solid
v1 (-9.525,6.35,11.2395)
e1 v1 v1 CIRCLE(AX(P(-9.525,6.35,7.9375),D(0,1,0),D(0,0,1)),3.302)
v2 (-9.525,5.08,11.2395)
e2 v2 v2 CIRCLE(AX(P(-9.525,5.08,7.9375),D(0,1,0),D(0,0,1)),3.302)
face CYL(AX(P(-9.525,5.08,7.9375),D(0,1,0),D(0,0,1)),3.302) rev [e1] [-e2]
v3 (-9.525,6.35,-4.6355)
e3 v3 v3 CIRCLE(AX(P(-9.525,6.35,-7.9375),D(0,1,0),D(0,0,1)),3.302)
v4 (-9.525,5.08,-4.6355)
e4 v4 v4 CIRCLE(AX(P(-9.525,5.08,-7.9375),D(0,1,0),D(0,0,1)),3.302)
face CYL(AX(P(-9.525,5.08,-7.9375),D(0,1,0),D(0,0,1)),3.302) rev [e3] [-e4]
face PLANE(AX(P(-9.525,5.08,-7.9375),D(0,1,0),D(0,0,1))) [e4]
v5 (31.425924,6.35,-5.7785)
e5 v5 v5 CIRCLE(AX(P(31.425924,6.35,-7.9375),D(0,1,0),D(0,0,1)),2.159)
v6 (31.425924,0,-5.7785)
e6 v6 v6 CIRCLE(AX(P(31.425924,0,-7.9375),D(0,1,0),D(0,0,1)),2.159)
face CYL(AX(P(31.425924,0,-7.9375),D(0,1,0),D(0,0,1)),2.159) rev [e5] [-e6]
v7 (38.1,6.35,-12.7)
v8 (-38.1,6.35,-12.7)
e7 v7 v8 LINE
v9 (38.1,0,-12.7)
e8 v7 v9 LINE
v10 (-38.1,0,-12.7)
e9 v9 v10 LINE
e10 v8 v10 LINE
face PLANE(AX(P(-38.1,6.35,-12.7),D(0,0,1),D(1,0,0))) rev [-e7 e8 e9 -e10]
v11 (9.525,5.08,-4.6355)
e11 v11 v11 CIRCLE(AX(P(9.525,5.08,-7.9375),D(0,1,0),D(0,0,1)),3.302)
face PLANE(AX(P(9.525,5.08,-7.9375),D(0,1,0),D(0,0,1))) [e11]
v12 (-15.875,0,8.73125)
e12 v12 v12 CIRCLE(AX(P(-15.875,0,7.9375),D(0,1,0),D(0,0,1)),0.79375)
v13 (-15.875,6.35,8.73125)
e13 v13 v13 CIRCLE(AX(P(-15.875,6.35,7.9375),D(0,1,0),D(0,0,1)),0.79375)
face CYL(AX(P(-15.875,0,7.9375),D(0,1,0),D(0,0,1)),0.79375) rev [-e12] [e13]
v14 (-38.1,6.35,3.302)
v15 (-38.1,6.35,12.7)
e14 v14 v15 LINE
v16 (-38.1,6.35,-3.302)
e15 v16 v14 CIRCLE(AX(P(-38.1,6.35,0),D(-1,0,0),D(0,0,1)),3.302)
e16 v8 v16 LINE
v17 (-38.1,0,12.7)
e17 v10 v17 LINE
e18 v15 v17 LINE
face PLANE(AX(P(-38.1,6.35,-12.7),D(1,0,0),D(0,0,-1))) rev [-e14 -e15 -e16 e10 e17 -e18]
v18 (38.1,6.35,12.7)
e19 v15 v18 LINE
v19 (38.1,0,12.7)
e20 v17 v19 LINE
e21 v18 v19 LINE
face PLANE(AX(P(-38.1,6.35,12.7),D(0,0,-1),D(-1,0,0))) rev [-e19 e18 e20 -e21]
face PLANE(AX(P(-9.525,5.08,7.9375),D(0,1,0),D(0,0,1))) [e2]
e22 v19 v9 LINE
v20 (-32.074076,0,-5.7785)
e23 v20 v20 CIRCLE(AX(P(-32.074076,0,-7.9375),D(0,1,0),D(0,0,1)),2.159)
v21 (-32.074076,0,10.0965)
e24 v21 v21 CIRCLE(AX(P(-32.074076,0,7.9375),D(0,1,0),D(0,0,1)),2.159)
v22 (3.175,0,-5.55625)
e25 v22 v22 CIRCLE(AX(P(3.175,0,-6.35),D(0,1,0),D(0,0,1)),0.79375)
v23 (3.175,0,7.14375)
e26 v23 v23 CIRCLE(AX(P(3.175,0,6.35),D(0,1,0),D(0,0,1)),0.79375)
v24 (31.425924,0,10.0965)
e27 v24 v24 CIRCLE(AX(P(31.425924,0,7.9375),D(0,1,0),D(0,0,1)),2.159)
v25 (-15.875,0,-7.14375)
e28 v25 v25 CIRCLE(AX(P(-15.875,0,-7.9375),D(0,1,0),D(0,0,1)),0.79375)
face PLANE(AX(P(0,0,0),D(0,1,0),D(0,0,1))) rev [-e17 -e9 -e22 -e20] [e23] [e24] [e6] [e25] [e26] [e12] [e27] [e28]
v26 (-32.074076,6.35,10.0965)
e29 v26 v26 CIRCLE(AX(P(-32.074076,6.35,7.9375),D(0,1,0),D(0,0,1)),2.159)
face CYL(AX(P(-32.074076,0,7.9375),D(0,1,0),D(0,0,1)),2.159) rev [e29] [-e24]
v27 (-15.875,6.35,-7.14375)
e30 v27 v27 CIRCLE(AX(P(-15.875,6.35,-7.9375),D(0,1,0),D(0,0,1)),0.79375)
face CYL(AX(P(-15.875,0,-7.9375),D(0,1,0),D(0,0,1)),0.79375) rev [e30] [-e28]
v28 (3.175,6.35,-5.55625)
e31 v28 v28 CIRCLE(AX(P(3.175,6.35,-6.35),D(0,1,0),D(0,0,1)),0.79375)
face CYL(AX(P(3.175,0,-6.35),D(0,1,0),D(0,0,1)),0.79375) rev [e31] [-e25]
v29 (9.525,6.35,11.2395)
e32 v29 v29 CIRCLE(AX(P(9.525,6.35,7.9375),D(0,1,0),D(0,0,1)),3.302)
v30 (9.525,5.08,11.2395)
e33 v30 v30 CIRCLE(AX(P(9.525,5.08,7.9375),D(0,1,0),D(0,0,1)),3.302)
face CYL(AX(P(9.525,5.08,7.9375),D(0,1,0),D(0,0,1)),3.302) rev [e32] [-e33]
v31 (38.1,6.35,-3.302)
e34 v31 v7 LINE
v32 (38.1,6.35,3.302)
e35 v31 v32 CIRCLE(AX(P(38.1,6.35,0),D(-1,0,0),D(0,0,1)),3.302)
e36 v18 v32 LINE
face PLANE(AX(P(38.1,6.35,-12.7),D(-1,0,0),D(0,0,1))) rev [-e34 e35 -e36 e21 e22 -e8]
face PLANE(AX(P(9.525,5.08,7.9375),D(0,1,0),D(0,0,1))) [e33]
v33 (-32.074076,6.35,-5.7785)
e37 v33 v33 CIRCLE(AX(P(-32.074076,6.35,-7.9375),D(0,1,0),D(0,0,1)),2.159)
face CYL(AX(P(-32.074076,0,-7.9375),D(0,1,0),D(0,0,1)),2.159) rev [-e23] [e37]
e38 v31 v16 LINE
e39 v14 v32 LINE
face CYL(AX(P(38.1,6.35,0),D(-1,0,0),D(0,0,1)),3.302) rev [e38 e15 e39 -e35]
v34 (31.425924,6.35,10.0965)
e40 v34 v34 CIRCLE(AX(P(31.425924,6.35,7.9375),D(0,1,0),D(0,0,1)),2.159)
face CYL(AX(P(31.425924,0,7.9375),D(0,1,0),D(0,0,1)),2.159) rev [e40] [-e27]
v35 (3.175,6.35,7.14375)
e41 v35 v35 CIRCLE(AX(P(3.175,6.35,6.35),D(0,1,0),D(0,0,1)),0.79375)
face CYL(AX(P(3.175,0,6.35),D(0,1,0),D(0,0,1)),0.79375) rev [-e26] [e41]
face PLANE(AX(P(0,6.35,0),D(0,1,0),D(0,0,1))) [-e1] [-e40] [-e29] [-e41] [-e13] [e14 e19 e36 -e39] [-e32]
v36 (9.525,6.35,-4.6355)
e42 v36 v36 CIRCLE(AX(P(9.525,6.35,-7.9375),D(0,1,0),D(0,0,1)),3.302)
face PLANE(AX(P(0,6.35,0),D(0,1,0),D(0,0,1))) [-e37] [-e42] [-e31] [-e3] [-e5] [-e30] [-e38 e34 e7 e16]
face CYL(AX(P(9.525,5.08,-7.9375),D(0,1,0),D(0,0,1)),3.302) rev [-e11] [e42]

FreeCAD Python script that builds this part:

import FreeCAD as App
import Part
import Sketcher
from FreeCAD import Vector
Q = App.Units.Quantity


def add_polygon(sketch, points):
    """Adds a closed chain of lines whose ends are joined by coincident constraints."""
    first, n = sketch.GeometryCount, len(points)
    for a, b in zip(points, points[1:] + points[:1]):
        sketch.addGeometry(Part.LineSegment(App.Vector(*a, 0), App.Vector(*b, 0)), False)
    for i in range(n):
        sketch.addConstraint(Sketcher.Constraint("Coincident", first + i, 2, first + (i + 1) % n, 1))

doc = App.newDocument("Part")
body = doc.addObject("PartDesign::Body", "Body")

# Sketch on XZ plane
sketch1 = body.newObject("Sketcher::SketchObject", "Sketch")
sketch1.AttachmentSupport = (doc.getObject("XZ_Plane"), [""])
sketch1.MapMode = "FlatFace"
add_polygon(sketch1, [(-38.1, -12.7), (-38.1, 12.7), (38.1, 12.7), (38.1, -12.7)])  # lines 0-3
sketch1.addConstraint([
    Sketcher.Constraint("Vertical", 0),
    Sketcher.Constraint("Horizontal", 1),
    Sketcher.Constraint("Vertical", 2),
    Sketcher.Constraint("Horizontal", 3),
    Sketcher.Constraint("Symmetric", 0, 2, 2, 2, -1, 1),
    Sketcher.Constraint("DistanceX", 1, 1, 1, 2, Q("3 in")),
    Sketcher.Constraint("DistanceY", 0, 1, 0, 2, Q("1 in")),
])
pad1 = body.newObject("PartDesign::Pad", "Pad")
pad1.Profile = sketch1
pad1.Length = Q("0.25 in")
pad1.Reversed = True

# Sketch on XZ plane
sketch2 = body.newObject("Sketcher::SketchObject", "Sketch001")
sketch2.AttachmentSupport = (doc.getObject("XZ_Plane"), [""])
sketch2.MapMode = "FlatFace"
sketch2.AttachmentOffset = App.Placement(Vector(0, 0, -0.25 * 25.4), App.Rotation())
sketch2.addGeometry([
    Part.Circle(Vector(-32.074076, -7.9375, 0), Vector(0, 0, 1), 2.159),
    Part.Circle(Vector(-32.074076, 7.9375, 0), Vector(0, 0, 1), 2.159),
    Part.Circle(Vector(31.425924, -7.9375, 0), Vector(0, 0, 1), 2.159),
    Part.Circle(Vector(31.425924, 7.9375, 0), Vector(0, 0, 1), 2.159),
], False)
sketch2.addConstraint([
    Sketcher.Constraint("Equal", 0, 1),
    Sketcher.Constraint("Equal", 1, 2),
    Sketcher.Constraint("Equal", 2, 3),
    Sketcher.Constraint("Symmetric", 0, 3, 1, 3, -1),
    Sketcher.Constraint("Symmetric", 2, 3, 3, 3, -1),
    Sketcher.Constraint("Horizontal", 0, 3, 2, 3),
    Sketcher.Constraint("Diameter", 0, Q("0.17 in")),
    Sketcher.Constraint("DistanceX", 0, 3, 2, 3, Q("2.5 in")),
    Sketcher.Constraint("DistanceY", 0, 3, -1, 1, Q("0.3125 in")),
    Sketcher.Constraint("DistanceX", 0, 3, -1, 1, 32.074076),
])
pocket1 = body.newObject("PartDesign::Pocket", "Pocket")
pocket1.Profile = sketch2
pocket1.Type = "ThroughAll"
pocket1.Reversed = True

# Sketch on XZ plane
sketch3 = body.newObject("Sketcher::SketchObject", "Sketch002")
sketch3.AttachmentSupport = (doc.getObject("XZ_Plane"), [""])
sketch3.MapMode = "FlatFace"
sketch3.AttachmentOffset = App.Placement(Vector(0, 0, -0.25 * 25.4), App.Rotation())
sketch3.addGeometry([
    Part.Circle(Vector(-9.525, -7.9375, 0), Vector(0, 0, 1), 3.302),
    Part.Circle(Vector(-9.525, 7.9375, 0), Vector(0, 0, 1), 3.302),
    Part.Circle(Vector(9.525, 7.9375, 0), Vector(0, 0, 1), 3.302),
    Part.Circle(Vector(9.525, -7.9375, 0), Vector(0, 0, 1), 3.302),
], False)
sketch3.addConstraint([
    Sketcher.Constraint("Equal", 0, 1),
    Sketcher.Constraint("Equal", 1, 2),
    Sketcher.Constraint("Equal", 2, 3),
    Sketcher.Constraint("Symmetric", 0, 3, 2, 3, -1, 1),
    Sketcher.Constraint("Symmetric", 1, 3, 3, 3, -1, 1),
    Sketcher.Constraint("Symmetric", 1, 3, 2, 3, -2),
    Sketcher.Constraint("Diameter", 0, Q("0.26 in")),
    Sketcher.Constraint("DistanceX", 1, 3, 2, 3, Q("0.75 in")),
    Sketcher.Constraint("DistanceY", 0, 3, -1, 1, Q("0.3125 in")),
])
pocket2 = body.newObject("PartDesign::Pocket", "Pocket001")
pocket2.Profile = sketch3
pocket2.Length = Q("0.05 in")
pocket2.Reversed = True

# Sketch on XZ plane
sketch4 = body.newObject("Sketcher::SketchObject", "Sketch003")
sketch4.AttachmentSupport = (doc.getObject("XZ_Plane"), [""])
sketch4.MapMode = "FlatFace"
sketch4.AttachmentOffset = App.Placement(Vector(0, 0, -0.25 * 25.4), App.Rotation())
sketch4.addGeometry([
    Part.Circle(Vector(-15.875, -7.9375, 0), Vector(0, 0, 1), 0.79375),
    Part.Circle(Vector(-15.875, 7.9375, 0), Vector(0, 0, 1), 0.79375),
    Part.Circle(Vector(3.175, -6.35, 0), Vector(0, 0, 1), 0.79375),
    Part.Circle(Vector(3.175, 6.35, 0), Vector(0, 0, 1), 0.79375),
], False)
sketch4.addConstraint([
    Sketcher.Constraint("Equal", 0, 1),
    Sketcher.Constraint("Equal", 1, 2),
    Sketcher.Constraint("Equal", 2, 3),
    Sketcher.Constraint("Symmetric", 0, 3, 1, 3, -1),
    Sketcher.Constraint("Symmetric", 2, 3, 3, 3, -1),
    Sketcher.Constraint("Diameter", 0, Q("0.0625 in")),
    Sketcher.Constraint("DistanceY", 2, 3, 3, 3, Q("0.5 in")),
    Sketcher.Constraint("DistanceX", 0, 3, 2, 3, Q("0.75 in")),
    Sketcher.Constraint("DistanceX", 0, 3, -1, 1, Q("0.625 in")),
    Sketcher.Constraint("DistanceY", 0, 3, -1, 1, Q("0.3125 in")),
])
pocket3 = body.newObject("PartDesign::Pocket", "Pocket002")
pocket3.Profile = sketch4
pocket3.Type = "ThroughAll"
pocket3.Reversed = True

# Sketch on YZ plane
sketch5 = body.newObject("Sketcher::SketchObject", "Sketch004")
sketch5.AttachmentSupport = (doc.getObject("YZ_Plane"), [""])
sketch5.MapMode = "FlatFace"
sketch5.AttachmentOffset = App.Placement(Vector(0, 0, -1.5 * 25.4), App.Rotation())
sketch5.addGeometry(Part.Circle(Vector(6.35, 0, 0), Vector(0, 0, 1), 3.302), False)
sketch5.addConstraint([
    Sketcher.Constraint("PointOnObject", 0, 3, -1),
    Sketcher.Constraint("Diameter", 0, Q("0.26 in")),
    Sketcher.Constraint("DistanceX", -1, 1, 0, 3, Q("0.25 in")),
])
pocket4 = body.newObject("PartDesign::Pocket", "Pocket003")
pocket4.Profile = sketch5
pocket4.Type = "ThroughAll"
pocket4.Reversed = True

doc.recompute()
